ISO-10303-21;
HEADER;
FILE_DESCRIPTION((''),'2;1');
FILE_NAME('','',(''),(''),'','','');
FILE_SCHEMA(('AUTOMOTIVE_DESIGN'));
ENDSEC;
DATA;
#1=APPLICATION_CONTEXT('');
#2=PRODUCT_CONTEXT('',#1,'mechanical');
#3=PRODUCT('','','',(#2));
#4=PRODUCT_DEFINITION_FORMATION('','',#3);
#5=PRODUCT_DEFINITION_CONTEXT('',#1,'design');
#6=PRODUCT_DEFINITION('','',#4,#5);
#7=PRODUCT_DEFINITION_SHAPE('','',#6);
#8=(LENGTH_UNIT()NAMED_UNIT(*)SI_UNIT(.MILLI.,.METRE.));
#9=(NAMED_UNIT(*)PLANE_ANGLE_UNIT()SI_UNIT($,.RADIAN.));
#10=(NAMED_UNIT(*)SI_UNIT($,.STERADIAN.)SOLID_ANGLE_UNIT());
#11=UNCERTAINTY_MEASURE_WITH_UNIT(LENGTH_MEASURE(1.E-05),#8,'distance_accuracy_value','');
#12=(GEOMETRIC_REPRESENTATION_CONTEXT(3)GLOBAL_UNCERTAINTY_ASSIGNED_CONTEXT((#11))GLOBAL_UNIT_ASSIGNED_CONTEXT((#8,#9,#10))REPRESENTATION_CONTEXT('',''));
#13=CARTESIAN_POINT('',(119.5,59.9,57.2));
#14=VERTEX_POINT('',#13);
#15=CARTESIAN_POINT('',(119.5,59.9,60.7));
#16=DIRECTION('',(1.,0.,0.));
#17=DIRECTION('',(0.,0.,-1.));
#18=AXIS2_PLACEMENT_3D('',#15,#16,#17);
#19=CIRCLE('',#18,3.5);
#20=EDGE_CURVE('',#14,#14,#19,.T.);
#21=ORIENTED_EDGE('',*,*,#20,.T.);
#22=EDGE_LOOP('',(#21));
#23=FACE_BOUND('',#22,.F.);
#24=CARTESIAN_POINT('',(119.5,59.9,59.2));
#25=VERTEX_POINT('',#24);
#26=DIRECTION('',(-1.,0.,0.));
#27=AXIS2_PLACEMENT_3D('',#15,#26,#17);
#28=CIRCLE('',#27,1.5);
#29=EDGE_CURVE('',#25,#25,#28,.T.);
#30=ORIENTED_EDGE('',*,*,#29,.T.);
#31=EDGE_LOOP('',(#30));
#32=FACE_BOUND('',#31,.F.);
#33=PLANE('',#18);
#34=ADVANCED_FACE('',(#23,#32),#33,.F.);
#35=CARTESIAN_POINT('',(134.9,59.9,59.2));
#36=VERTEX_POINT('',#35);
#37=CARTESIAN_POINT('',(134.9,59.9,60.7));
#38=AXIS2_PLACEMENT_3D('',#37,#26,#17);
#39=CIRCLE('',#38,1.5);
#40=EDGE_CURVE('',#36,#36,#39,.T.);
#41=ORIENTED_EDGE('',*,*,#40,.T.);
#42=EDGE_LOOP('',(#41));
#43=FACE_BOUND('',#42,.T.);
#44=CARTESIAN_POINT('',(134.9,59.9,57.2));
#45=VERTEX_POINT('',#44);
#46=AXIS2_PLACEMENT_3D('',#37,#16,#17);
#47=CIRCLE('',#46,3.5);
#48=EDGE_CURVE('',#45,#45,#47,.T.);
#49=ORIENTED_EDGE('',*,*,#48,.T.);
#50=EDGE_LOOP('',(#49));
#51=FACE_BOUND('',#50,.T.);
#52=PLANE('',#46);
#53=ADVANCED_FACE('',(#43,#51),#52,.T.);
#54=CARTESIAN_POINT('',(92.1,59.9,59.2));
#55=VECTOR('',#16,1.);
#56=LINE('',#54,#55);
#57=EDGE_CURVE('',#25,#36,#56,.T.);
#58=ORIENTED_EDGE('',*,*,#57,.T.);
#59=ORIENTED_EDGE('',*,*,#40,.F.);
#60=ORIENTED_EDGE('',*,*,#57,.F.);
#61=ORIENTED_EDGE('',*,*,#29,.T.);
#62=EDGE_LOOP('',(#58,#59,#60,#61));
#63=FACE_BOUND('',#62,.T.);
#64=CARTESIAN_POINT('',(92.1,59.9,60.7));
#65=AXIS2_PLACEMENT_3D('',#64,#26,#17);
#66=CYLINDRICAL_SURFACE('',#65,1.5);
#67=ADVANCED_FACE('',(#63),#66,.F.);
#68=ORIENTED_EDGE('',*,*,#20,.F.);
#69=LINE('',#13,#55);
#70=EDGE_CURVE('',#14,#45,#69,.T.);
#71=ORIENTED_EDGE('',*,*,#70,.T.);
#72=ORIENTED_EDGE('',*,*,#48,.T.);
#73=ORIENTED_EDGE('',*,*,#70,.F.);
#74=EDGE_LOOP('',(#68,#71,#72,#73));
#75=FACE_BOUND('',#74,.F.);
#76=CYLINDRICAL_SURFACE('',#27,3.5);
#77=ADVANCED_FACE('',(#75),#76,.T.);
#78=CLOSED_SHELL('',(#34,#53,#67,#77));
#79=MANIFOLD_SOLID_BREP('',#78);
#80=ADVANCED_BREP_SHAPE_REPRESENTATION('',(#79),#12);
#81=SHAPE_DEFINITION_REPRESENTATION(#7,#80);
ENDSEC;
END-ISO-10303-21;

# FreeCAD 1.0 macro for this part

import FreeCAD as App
import Part
import Sketcher

V = App.Vector

doc = App.newDocument("Part")
params = doc.addObject("Spreadsheet::Sheet", "Params")
for row, (alias, value) in enumerate([
    ("sketch1_diameter", "3 mm"),
    ("pad1_length", "55 mm"),
    ("sketch2_diameter", "7 mm"),
    ("pad2_length", "15.4 mm"),
], start=1):
    params.set(f"A{row}", alias)
    params.set(f"B{row}", "=" + value)
    params.setAlias(f"B{row}", alias)

body = doc.addObject("PartDesign::Body", "Body")

# Sketch on YZ plane
sketch1 = body.newObject("Sketcher::SketchObject", "Sketch")
sketch1.AttachmentSupport = (doc.getObject("YZ_Plane"), [""])
sketch1.MapMode = "FlatFace"
sketch1.AttachmentOffset = App.Placement(V(0, 0, 92.1), App.Rotation())
sketch1.addGeometry(Part.Circle(V(59.9, 60.7, 0), V(0, 0, 1), 1.5), False)
sketch1.addConstraint(Sketcher.Constraint("Diameter", 0, 3.0))
sketch1.addConstraint(Sketcher.Constraint("DistanceX", -1, 1, 0, 3, 59.9))
sketch1.addConstraint(Sketcher.Constraint("DistanceY", -1, 1, 0, 3, 60.7))
sketch1.setExpression("Constraints[0]", "Params.sketch1_diameter")
pad1 = body.newObject("PartDesign::Pad", "Pad")
pad1.Profile = sketch1
pad1.setExpression("Length", "Params.pad1_length")
body2 = doc.addObject("PartDesign::Body", "Body001")

# Sketch on YZ plane
sketch2 = body2.newObject("Sketcher::SketchObject", "Sketch001")
sketch2.AttachmentSupport = (doc.getObject("YZ_Plane001"), [""])
sketch2.MapMode = "FlatFace"
sketch2.AttachmentOffset = App.Placement(V(0, 0, 119.5), App.Rotation())
sketch2.addGeometry(Part.Circle(V(59.9, 60.7, 0), V(0, 0, 1), 3.5), False)
sketch2.addConstraint(Sketcher.Constraint("Diameter", 0, 7.0))
sketch2.addConstraint(Sketcher.Constraint("DistanceX", -1, 1, 0, 3, 59.9))
sketch2.addConstraint(Sketcher.Constraint("DistanceY", -1, 1, 0, 3, 60.7))
sketch2.setExpression("Constraints[0]", "Params.sketch2_diameter")
pad2 = body2.newObject("PartDesign::Pad", "Pad001")
pad2.Profile = sketch2
pad2.setExpression("Length", "Params.pad2_length")
doc.recompute()

boolean = body2.newObject("PartDesign::Boolean", "Boolean")
boolean.Type = "Cut"
boolean.addObjects([body])

doc.recompute()
